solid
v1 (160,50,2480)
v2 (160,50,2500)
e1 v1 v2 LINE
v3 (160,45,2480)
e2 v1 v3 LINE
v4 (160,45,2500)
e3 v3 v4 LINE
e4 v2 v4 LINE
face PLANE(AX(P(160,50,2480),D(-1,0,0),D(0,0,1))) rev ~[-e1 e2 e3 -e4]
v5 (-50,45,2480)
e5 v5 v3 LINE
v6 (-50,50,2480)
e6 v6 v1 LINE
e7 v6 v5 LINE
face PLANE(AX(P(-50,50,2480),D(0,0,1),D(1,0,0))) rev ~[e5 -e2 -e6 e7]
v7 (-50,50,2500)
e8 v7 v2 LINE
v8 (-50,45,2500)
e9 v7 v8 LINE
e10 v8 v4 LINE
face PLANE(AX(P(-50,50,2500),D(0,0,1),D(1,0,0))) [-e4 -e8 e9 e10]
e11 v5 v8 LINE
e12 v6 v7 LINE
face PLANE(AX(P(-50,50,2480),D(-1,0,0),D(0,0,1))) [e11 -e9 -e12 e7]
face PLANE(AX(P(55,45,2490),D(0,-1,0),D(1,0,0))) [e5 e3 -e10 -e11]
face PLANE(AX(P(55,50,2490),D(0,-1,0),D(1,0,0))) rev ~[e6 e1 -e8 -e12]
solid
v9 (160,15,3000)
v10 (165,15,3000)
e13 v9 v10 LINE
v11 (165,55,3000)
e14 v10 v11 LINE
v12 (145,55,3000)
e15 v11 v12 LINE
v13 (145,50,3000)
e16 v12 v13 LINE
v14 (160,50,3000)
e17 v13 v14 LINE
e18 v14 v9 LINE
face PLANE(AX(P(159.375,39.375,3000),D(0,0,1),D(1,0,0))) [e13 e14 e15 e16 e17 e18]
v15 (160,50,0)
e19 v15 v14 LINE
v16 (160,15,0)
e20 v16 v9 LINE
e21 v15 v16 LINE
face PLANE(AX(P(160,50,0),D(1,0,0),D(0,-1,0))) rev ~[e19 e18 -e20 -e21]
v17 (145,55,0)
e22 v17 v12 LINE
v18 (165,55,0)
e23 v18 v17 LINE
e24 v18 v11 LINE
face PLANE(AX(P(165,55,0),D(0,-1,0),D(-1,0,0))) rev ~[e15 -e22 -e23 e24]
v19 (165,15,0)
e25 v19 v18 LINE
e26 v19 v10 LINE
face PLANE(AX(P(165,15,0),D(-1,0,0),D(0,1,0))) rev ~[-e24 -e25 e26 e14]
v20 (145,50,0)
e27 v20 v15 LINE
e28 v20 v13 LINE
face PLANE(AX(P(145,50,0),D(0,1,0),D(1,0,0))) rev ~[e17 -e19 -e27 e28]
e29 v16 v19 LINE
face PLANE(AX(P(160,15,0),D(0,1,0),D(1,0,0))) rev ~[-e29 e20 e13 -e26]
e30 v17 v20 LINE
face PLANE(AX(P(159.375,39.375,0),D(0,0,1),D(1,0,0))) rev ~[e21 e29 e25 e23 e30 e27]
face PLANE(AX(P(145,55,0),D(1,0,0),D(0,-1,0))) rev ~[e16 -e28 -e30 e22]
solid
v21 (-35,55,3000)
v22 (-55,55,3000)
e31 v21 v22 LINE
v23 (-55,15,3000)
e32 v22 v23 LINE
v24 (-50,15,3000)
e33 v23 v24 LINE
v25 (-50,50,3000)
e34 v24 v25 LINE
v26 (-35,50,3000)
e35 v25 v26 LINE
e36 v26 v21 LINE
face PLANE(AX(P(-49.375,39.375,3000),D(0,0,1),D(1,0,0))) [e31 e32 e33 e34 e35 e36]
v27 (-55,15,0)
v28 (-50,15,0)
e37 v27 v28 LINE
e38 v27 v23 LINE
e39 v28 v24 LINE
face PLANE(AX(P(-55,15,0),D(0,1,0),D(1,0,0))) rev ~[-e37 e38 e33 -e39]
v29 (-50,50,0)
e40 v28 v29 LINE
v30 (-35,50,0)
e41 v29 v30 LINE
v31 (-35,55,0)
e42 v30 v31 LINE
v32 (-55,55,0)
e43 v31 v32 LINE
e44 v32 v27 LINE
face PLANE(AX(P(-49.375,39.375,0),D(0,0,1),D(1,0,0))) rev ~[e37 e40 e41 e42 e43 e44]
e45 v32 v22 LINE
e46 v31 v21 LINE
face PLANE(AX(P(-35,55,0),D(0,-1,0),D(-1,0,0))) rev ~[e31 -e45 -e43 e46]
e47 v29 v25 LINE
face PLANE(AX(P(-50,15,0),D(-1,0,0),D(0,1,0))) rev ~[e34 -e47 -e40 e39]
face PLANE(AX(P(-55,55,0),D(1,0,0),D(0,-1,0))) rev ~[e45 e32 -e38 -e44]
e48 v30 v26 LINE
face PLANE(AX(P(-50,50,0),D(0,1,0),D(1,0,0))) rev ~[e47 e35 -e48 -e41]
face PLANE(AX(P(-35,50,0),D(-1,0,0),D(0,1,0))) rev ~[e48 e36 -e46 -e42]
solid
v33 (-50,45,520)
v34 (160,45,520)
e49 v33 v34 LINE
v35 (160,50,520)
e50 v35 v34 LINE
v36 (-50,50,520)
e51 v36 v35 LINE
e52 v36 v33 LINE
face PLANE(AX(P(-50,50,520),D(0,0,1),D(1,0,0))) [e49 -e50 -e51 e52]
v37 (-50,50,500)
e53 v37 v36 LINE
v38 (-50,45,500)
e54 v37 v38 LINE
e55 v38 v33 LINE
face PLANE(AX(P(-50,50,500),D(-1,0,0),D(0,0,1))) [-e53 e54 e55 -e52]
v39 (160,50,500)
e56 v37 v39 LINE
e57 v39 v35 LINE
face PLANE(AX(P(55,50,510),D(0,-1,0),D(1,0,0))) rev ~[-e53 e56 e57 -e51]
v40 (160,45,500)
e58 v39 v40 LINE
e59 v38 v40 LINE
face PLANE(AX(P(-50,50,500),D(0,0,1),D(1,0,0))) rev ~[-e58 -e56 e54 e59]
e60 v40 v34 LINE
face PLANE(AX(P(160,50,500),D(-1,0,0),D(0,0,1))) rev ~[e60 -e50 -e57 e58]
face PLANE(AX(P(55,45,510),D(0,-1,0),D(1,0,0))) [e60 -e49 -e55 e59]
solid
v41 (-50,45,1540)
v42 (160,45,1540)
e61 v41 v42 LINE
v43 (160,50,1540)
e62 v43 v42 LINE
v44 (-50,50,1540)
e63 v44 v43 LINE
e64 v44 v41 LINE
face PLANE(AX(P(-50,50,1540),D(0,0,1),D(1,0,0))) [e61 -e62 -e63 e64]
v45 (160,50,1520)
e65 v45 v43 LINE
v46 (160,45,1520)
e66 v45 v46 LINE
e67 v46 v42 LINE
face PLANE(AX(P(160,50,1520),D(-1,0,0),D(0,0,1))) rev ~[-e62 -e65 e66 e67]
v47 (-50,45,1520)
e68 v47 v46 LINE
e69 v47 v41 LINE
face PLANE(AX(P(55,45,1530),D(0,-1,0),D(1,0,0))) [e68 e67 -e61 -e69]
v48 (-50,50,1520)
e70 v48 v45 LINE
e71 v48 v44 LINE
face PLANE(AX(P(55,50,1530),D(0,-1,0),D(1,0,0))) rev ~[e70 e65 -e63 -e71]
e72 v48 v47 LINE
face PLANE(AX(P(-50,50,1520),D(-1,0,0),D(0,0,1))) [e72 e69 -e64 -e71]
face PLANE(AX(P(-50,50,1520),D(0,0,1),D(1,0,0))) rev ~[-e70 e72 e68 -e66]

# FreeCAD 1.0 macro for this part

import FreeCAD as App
import Part
import Sketcher


def add_polygon(sketch, points):
    """Adds a closed chain of lines whose ends are joined by coincident constraints."""
    first, n = sketch.GeometryCount, len(points)
    for a, b in zip(points, points[1:] + points[:1]):
        sketch.addGeometry(Part.LineSegment(App.Vector(*a, 0), App.Vector(*b, 0)), False)
    for i in range(n):
        sketch.addConstraint(Sketcher.Constraint("Coincident", first + i, 2, first + (i + 1) % n, 1))

doc = App.newDocument("Part")
params = doc.addObject("Spreadsheet::Sheet", "Params")
for row, (alias, value) in enumerate([
    ("sketch1_width", "20 mm"),
    ("sketch1_width2", "5 mm"),
    ("sketch1_height", "40 mm"),
    ("pad1_length", "3000 mm"),
    ("sketch2_width", "210 mm"),
    ("sketch2_height", "20 mm"),
    ("pad2_length", "5 mm"),
    ("sketch3_width", "210 mm"),
    ("sketch3_height", "20 mm"),
    ("pad3_length", "5 mm"),
    ("sketch4_width", "210 mm"),
    ("sketch4_height", "20 mm"),
    ("pad4_length", "5 mm"),
], start=1):
    params.set(f"A{row}", alias)
    params.set(f"B{row}", "=" + value)
    params.setAlias(f"B{row}", alias)

body = doc.addObject("PartDesign::Body", "Body")
body.AllowCompound = True

# Sketch on XY plane
sketch1 = body.newObject("Sketcher::SketchObject", "Sketch")
sketch1.AttachmentSupport = (doc.getObject("XY_Plane"), [""])
sketch1.MapMode = "FlatFace"
add_polygon(sketch1, [(-35, 55), (-55, 55), (-55, 15), (-50, 15), (-50, 50), (-35, 50)])  # lines 0-5
add_polygon(sketch1, [(165, 55), (145, 55), (145, 50), (160, 50), (160, 15), (165, 15)])  # lines 6-11
sketch1.addConstraint(Sketcher.Constraint("Horizontal", 0))
sketch1.addConstraint(Sketcher.Constraint("Vertical", 1))
sketch1.addConstraint(Sketcher.Constraint("Horizontal", 2))
sketch1.addConstraint(Sketcher.Constraint("Vertical", 3))
sketch1.addConstraint(Sketcher.Constraint("Horizontal", 4))
sketch1.addConstraint(Sketcher.Constraint("Vertical", 5))
sketch1.addConstraint(Sketcher.Constraint("Horizontal", 6))
sketch1.addConstraint(Sketcher.Constraint("Vertical", 7))
sketch1.addConstraint(Sketcher.Constraint("Horizontal", 8))
sketch1.addConstraint(Sketcher.Constraint("Vertical", 9))
sketch1.addConstraint(Sketcher.Constraint("Horizontal", 10))
sketch1.addConstraint(Sketcher.Constraint("Vertical", 11))
sketch1.addConstraint(Sketcher.Constraint("Horizontal", 5, 2, 6, 2))
sketch1.addConstraint(Sketcher.Constraint("Horizontal", 4, 2, 7, 2))
sketch1.addConstraint(Sketcher.Constraint("Horizontal", 2, 2, 9, 2))
sketch1.addConstraint(Sketcher.Constraint("Equal", 0, 6))
sketch1.addConstraint(Sketcher.Constraint("Equal", 4, 8))
sketch1.addConstraint(Sketcher.Constraint("Equal", 10, 5))
sketch1.addConstraint(Sketcher.Constraint("DistanceX", 0, 2, 0, 1, 20.0))
sketch1.addConstraint(Sketcher.Constraint("DistanceX", 2, 1, 2, 2, 5.0))
sketch1.addConstraint(Sketcher.Constraint("DistanceY", 1, 2, 1, 1, 40.0))
sketch1.addConstraint(Sketcher.Constraint("DistanceX", 0, 2, -1, 1, 55.0))
sketch1.addConstraint(Sketcher.Constraint("DistanceY", -1, 1, 0, 2, 55.0))
sketch1.addConstraint(Sketcher.Constraint("DistanceX", -1, 1, 6, 2, 145.0))
sketch1.setExpression("Constraints[30]", "Params.sketch1_width")
sketch1.setExpression("Constraints[31]", "Params.sketch1_width2")
sketch1.setExpression("Constraints[32]", "Params.sketch1_height")
pad1 = body.newObject("PartDesign::Pad", "Pad")
pad1.Profile = sketch1
pad1.setExpression("Length", "Params.pad1_length")
body2 = doc.addObject("PartDesign::Body", "Body001")

# Sketch on XZ plane
sketch2 = body2.newObject("Sketcher::SketchObject", "Sketch001")
sketch2.AttachmentSupport = (doc.getObject("XZ_Plane001"), [""])
sketch2.MapMode = "FlatFace"
sketch2.AttachmentOffset = App.Placement(App.Vector(0, 0, -50), App.Rotation())
add_polygon(sketch2, [(-50, 2500), (-50, 2480), (160, 2480), (160, 2500)])  # lines 0-3
sketch2.addConstraint(Sketcher.Constraint("Vertical", 0))
sketch2.addConstraint(Sketcher.Constraint("Horizontal", 1))
sketch2.addConstraint(Sketcher.Constraint("Vertical", 2))
sketch2.addConstraint(Sketcher.Constraint("Horizontal", 3))
sketch2.addConstraint(Sketcher.Constraint("DistanceX", 1, 1, 1, 2, 210.0))
sketch2.addConstraint(Sketcher.Constraint("DistanceY", 0, 2, 0, 1, 20.0))
sketch2.addConstraint(Sketcher.Constraint("DistanceX", 0, 2, -1, 1, 50.0))
sketch2.addConstraint(Sketcher.Constraint("DistanceY", -1, 1, 0, 2, 2480.0))
sketch2.setExpression("Constraints[8]", "Params.sketch2_width")
sketch2.setExpression("Constraints[9]", "Params.sketch2_height")
pad2 = body2.newObject("PartDesign::Pad", "Pad001")
pad2.Profile = sketch2
pad2.setExpression("Length", "Params.pad2_length")
body3 = doc.addObject("PartDesign::Body", "Body002")

# Sketch on XZ plane
sketch3 = body3.newObject("Sketcher::SketchObject", "Sketch002")
sketch3.AttachmentSupport = (doc.getObject("XZ_Plane002"), [""])
sketch3.MapMode = "FlatFace"
sketch3.AttachmentOffset = App.Placement(App.Vector(0, 0, -50), App.Rotation())
add_polygon(sketch3, [(-50, 520), (-50, 500), (160, 500), (160, 520)])  # lines 0-3
sketch3.addConstraint(Sketcher.Constraint("Vertical", 0))
sketch3.addConstraint(Sketcher.Constraint("Horizontal", 1))
sketch3.addConstraint(Sketcher.Constraint("Vertical", 2))
sketch3.addConstraint(Sketcher.Constraint("Horizontal", 3))
sketch3.addConstraint(Sketcher.Constraint("DistanceX", 1, 1, 1, 2, 210.0))
sketch3.addConstraint(Sketcher.Constraint("DistanceY", 0, 2, 0, 1, 20.0))
sketch3.addConstraint(Sketcher.Constraint("DistanceX", 0, 2, -1, 1, 50.0))
sketch3.addConstraint(Sketcher.Constraint("DistanceY", -1, 1, 0, 2, 500.0))
sketch3.setExpression("Constraints[8]", "Params.sketch3_width")
sketch3.setExpression("Constraints[9]", "Params.sketch3_height")
pad3 = body3.newObject("PartDesign::Pad", "Pad002")
pad3.Profile = sketch3
pad3.setExpression("Length", "Params.pad3_length")
body4 = doc.addObject("PartDesign::Body", "Body003")

# Sketch on XZ plane
sketch4 = body4.newObject("Sketcher::SketchObject", "Sketch003")
sketch4.AttachmentSupport = (doc.getObject("XZ_Plane003"), [""])
sketch4.MapMode = "FlatFace"
sketch4.AttachmentOffset = App.Placement(App.Vector(0, 0, -50), App.Rotation())
add_polygon(sketch4, [(-50, 1540), (-50, 1520), (160, 1520), (160, 1540)])  # lines 0-3
sketch4.addConstraint(Sketcher.Constraint("Vertical", 0))
sketch4.addConstraint(Sketcher.Constraint("Horizontal", 1))
sketch4.addConstraint(Sketcher.Constraint("Vertical", 2))
sketch4.addConstraint(Sketcher.Constraint("Horizontal", 3))
sketch4.addConstraint(Sketcher.Constraint("DistanceX", 1, 1, 1, 2, 210.0))
sketch4.addConstraint(Sketcher.Constraint("DistanceY", 0, 2, 0, 1, 20.0))
sketch4.addConstraint(Sketcher.Constraint("DistanceX", 0, 2, -1, 1, 50.0))
sketch4.addConstraint(Sketcher.Constraint("DistanceY", -1, 1, 0, 2, 1520.0))
sketch4.setExpression("Constraints[8]", "Params.sketch4_width")
sketch4.setExpression("Constraints[9]", "Params.sketch4_height")
pad4 = body4.newObject("PartDesign::Pad", "Pad003")
pad4.Profile = sketch4
pad4.setExpression("Length", "Params.pad4_length")

doc.recompute()
